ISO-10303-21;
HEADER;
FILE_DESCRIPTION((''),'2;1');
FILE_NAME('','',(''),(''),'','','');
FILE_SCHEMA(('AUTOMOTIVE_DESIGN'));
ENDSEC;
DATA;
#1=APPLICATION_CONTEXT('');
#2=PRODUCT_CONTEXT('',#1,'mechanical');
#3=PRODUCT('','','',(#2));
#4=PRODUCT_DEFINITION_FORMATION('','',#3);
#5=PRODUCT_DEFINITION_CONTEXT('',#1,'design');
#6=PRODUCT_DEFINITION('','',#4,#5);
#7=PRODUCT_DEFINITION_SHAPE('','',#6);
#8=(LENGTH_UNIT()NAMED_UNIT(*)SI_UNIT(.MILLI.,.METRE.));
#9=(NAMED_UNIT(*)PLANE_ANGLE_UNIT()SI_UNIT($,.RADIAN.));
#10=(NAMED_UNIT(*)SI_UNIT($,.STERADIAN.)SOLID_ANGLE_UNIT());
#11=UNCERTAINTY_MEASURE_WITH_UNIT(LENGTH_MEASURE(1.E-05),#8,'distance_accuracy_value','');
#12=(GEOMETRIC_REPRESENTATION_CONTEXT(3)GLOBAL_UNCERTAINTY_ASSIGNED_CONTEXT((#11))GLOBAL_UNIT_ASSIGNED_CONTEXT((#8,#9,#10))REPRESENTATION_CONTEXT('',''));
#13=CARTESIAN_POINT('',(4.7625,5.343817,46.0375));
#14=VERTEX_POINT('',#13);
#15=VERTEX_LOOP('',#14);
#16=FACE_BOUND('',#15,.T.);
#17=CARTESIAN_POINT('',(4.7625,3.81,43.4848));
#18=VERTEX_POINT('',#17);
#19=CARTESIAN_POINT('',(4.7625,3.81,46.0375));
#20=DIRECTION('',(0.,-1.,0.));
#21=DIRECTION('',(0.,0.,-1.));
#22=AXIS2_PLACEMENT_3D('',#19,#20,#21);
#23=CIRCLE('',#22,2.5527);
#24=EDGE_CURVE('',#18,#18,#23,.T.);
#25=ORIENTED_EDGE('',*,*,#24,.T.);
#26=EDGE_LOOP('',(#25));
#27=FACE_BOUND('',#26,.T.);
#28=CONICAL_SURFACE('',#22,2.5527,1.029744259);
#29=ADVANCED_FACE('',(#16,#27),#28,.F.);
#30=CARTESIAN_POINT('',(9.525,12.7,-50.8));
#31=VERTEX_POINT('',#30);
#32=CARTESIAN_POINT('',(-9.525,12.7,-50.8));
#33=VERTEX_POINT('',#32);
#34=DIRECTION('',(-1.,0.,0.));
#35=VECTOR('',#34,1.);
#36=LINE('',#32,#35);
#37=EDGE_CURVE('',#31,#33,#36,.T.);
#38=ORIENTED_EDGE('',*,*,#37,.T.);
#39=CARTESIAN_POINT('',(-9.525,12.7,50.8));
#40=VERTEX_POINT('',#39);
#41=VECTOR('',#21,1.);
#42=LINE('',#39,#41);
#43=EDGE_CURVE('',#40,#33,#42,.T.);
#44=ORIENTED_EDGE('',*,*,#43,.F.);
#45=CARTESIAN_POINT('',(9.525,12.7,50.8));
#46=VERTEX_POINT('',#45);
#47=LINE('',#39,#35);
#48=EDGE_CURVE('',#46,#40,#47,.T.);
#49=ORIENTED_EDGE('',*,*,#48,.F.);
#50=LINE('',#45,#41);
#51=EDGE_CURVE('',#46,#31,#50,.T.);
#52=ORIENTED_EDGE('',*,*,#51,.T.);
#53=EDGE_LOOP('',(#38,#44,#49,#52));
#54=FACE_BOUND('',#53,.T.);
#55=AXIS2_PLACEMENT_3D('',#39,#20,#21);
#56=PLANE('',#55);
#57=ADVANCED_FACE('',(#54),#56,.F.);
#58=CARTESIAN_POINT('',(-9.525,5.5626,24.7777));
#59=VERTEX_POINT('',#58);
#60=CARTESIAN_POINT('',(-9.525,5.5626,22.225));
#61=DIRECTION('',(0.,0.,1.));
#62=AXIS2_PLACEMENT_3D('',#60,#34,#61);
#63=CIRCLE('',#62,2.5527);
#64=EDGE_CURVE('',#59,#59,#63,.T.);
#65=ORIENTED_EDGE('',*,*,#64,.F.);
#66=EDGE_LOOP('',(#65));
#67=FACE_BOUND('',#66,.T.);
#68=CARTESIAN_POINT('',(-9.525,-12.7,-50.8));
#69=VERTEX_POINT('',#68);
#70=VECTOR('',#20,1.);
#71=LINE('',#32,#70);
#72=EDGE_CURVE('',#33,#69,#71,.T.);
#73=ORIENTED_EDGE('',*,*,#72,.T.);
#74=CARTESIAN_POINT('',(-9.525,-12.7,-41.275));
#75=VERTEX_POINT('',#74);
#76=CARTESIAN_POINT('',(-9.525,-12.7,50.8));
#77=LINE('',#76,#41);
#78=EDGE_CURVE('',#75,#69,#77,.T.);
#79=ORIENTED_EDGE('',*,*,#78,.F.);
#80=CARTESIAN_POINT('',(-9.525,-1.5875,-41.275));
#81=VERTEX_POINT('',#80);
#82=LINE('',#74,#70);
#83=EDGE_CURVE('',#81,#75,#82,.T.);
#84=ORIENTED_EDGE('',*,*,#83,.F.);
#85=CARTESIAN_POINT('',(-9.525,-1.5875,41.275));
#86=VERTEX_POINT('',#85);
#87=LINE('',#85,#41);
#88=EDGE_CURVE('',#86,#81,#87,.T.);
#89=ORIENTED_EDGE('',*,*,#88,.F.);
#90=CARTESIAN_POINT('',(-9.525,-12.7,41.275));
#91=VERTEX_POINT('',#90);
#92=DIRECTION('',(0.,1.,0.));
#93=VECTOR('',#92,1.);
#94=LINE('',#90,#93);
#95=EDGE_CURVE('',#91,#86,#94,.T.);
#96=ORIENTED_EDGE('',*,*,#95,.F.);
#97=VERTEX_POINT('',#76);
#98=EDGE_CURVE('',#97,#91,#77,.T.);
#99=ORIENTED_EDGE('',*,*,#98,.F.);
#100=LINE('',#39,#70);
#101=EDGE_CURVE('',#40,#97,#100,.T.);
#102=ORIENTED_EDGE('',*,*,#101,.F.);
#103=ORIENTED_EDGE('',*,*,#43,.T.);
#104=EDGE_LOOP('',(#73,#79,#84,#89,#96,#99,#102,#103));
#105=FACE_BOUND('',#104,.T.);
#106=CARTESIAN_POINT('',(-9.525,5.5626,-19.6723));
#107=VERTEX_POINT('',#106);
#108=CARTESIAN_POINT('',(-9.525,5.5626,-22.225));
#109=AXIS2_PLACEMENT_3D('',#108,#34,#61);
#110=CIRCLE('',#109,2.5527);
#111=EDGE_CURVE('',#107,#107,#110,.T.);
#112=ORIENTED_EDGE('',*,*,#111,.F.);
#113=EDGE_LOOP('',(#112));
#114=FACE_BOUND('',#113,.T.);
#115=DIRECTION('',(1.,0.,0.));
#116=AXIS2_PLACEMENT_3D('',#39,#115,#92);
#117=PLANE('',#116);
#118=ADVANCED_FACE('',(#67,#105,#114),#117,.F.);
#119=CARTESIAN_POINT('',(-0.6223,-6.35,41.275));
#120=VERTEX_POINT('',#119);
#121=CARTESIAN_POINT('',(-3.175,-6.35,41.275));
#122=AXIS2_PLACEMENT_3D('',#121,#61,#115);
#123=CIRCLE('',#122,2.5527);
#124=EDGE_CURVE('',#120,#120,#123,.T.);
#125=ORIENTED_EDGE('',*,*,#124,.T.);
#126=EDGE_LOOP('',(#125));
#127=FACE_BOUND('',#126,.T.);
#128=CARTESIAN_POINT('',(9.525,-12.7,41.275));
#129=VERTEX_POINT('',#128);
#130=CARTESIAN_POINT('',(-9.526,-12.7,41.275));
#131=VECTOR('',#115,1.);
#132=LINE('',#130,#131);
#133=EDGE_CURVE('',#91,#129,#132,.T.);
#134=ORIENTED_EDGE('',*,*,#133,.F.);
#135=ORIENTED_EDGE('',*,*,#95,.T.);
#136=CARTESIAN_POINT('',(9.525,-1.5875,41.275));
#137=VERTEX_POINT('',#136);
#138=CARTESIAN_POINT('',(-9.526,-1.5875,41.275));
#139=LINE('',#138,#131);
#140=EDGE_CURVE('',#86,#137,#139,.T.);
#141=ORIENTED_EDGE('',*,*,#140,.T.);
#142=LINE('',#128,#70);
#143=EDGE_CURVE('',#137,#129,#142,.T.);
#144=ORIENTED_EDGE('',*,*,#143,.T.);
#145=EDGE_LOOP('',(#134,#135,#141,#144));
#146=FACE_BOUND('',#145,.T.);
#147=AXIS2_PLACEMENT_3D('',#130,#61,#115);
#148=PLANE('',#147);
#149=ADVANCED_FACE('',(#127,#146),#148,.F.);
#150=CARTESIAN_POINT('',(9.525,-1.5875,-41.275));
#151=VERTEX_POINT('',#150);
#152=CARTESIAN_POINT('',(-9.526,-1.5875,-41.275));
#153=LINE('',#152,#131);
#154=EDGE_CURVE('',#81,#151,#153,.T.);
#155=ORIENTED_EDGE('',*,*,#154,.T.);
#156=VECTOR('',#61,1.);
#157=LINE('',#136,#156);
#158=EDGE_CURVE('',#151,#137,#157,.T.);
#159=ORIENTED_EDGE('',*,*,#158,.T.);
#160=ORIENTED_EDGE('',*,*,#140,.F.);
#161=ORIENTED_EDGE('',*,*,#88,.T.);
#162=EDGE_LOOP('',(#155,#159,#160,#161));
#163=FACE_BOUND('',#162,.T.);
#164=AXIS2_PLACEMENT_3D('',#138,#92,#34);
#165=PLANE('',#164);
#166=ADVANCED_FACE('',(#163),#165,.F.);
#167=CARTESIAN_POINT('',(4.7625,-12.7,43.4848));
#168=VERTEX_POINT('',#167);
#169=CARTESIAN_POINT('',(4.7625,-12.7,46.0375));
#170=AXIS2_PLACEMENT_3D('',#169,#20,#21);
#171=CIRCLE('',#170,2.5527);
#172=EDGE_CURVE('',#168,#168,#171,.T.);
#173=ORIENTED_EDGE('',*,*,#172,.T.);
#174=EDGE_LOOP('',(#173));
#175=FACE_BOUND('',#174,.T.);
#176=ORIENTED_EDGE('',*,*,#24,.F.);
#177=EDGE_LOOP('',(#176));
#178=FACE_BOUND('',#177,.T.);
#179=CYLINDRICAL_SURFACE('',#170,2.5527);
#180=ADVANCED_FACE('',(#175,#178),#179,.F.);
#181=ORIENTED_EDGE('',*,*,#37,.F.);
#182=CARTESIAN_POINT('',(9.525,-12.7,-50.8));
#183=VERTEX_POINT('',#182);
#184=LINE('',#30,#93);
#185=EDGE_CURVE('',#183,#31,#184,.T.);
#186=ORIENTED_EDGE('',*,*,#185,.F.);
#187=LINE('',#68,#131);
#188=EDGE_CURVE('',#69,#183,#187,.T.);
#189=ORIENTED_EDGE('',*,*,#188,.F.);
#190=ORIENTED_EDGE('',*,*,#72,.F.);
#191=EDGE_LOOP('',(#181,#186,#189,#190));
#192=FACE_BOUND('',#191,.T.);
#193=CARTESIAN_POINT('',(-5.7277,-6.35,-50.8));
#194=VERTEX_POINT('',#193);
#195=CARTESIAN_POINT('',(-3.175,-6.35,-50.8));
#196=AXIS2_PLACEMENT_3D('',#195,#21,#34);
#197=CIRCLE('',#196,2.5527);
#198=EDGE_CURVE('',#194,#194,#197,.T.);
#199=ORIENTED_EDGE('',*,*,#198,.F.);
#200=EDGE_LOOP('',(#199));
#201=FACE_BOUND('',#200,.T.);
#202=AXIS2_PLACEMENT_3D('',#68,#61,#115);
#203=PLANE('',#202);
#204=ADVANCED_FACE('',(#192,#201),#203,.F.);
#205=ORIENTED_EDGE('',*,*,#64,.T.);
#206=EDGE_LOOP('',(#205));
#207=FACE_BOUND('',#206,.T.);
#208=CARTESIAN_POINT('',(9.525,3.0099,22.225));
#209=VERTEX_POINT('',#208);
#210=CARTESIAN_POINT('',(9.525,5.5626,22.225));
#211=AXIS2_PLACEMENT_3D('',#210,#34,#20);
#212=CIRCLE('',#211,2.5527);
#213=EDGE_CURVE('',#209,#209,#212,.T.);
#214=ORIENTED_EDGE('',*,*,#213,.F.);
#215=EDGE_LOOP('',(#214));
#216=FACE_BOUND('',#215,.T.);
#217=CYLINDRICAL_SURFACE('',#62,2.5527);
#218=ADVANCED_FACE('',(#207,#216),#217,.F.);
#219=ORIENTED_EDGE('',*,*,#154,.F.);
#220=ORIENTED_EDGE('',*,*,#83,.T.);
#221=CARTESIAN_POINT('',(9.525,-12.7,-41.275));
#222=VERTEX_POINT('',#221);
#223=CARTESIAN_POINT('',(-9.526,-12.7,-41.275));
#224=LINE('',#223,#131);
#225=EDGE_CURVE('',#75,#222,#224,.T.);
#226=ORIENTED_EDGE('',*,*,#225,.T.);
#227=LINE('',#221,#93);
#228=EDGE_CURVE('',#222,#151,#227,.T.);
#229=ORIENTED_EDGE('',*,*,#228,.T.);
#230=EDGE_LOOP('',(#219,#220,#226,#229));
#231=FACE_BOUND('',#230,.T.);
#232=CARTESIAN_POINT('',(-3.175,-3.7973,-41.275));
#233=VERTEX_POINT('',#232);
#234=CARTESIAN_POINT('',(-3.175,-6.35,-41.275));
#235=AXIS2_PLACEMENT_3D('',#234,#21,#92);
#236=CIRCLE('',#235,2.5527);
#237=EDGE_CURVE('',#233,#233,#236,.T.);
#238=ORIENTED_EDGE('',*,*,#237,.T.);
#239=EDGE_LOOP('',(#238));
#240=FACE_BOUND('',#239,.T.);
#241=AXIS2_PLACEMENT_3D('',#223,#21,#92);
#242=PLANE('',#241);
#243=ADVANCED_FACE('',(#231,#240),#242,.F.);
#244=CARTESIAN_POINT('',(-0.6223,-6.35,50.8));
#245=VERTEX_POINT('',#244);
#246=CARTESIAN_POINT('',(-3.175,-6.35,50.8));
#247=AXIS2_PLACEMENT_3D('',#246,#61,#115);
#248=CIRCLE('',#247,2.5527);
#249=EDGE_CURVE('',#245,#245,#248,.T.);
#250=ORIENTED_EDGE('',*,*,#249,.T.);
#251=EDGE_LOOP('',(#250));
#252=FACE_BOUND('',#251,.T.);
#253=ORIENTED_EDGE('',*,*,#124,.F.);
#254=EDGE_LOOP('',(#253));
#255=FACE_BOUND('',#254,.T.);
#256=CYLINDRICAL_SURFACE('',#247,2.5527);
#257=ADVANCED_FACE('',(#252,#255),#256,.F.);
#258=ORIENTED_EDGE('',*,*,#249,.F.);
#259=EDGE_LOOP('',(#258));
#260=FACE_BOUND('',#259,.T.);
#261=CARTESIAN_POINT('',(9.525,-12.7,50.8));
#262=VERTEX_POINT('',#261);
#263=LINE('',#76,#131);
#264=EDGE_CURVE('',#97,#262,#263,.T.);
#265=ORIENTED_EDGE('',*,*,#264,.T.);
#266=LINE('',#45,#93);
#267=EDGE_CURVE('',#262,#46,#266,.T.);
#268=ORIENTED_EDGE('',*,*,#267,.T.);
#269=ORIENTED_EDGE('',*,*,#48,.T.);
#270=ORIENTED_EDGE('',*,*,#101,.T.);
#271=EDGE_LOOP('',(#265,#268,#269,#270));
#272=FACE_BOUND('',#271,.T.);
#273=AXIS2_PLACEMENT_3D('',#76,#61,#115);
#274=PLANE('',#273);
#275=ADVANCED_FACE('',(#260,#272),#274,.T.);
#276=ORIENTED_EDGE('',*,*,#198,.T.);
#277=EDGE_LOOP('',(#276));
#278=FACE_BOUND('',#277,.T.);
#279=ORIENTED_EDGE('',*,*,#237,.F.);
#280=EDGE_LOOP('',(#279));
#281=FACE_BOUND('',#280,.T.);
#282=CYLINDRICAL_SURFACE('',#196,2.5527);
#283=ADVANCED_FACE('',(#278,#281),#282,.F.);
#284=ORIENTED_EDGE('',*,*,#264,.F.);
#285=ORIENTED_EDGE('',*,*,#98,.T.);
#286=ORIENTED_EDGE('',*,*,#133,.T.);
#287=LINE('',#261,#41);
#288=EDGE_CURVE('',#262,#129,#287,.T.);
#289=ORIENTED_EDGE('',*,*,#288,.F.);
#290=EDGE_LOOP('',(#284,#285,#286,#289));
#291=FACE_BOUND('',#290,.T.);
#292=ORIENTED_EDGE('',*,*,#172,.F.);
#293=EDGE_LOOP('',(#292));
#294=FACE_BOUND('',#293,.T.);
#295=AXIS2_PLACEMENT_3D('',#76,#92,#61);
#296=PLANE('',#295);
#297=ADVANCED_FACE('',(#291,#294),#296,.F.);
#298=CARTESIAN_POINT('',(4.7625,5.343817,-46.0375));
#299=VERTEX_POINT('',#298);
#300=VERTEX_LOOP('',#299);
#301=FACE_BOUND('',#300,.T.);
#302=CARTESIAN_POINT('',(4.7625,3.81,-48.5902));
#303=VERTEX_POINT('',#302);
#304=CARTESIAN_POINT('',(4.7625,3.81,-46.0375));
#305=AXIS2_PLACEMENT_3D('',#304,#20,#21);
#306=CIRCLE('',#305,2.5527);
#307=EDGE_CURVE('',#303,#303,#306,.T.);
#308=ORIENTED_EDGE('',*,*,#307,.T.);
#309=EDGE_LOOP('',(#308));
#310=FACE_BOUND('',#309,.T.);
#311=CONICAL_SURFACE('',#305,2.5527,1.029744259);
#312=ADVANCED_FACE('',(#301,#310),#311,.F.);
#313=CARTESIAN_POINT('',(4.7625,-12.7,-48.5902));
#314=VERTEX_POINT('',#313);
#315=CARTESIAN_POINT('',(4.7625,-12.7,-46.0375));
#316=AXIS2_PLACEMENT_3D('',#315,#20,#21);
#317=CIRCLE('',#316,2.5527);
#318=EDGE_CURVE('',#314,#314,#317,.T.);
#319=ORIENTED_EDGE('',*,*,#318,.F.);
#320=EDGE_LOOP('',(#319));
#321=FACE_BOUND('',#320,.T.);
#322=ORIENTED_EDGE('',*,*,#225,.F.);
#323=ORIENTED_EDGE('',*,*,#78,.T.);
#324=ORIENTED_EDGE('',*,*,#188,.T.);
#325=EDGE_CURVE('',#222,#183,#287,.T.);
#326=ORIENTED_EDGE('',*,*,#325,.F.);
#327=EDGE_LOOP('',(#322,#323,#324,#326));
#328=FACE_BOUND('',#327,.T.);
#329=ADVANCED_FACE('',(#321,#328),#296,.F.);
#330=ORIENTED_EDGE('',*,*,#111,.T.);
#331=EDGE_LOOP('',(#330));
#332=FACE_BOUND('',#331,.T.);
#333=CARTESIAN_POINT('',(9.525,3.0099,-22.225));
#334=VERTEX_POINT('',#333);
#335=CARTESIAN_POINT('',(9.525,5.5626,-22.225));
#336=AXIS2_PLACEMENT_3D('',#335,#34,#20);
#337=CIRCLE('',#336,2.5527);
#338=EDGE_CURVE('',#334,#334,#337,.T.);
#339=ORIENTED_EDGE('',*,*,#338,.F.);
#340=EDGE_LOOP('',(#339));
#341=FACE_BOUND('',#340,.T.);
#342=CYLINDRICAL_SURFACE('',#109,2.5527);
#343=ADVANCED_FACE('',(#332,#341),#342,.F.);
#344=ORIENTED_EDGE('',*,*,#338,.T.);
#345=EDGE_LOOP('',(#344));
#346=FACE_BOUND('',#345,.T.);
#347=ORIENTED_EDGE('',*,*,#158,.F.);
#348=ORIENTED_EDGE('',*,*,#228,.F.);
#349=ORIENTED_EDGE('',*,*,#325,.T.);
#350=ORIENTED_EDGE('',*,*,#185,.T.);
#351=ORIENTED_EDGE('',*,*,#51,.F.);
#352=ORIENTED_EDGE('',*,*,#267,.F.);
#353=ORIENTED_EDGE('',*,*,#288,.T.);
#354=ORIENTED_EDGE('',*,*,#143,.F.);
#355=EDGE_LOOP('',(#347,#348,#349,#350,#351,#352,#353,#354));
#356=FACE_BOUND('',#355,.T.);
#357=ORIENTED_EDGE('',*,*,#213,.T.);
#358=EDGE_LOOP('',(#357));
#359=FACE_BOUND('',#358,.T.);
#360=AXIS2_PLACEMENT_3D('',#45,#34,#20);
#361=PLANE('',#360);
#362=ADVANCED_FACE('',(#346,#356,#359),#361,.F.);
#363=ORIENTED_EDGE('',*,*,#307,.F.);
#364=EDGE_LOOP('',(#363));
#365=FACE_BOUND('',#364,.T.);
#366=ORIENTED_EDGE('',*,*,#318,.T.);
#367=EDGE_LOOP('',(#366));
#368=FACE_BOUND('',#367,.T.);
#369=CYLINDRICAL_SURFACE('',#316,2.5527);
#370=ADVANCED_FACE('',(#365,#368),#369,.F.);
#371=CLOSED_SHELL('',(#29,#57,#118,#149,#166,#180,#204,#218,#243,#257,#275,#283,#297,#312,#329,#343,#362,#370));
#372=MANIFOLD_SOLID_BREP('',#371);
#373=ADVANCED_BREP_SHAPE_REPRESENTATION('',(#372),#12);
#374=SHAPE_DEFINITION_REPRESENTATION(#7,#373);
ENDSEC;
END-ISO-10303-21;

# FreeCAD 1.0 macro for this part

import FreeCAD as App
import Part
import Sketcher
from FreeCAD import Vector
Q = App.Units.Quantity


def add_polygon(sketch, points):
    """Adds a closed chain of lines whose ends are joined by coincident constraints."""
    first, n = sketch.GeometryCount, len(points)
    for a, b in zip(points, points[1:] + points[:1]):
        sketch.addGeometry(Part.LineSegment(App.Vector(*a, 0), App.Vector(*b, 0)), False)
    for i in range(n):
        sketch.addConstraint(Sketcher.Constraint("Coincident", first + i, 2, first + (i + 1) % n, 1))

doc = App.newDocument("Part")
body = doc.addObject("PartDesign::Body", "Body")

sketch1 = body.newObject("Sketcher::SketchObject", "Sketch")
sketch1.AttachmentSupport = (doc.getObject("XY_Plane"), [""])
sketch1.MapMode = "FlatFace"
add_polygon(sketch1, [(-9.525, 12.7), (-9.525, -12.7), (9.525, -12.7), (9.525, 12.7)])
sketch1.addConstraint(Sketcher.Constraint("Vertical", 0))
sketch1.addConstraint(Sketcher.Constraint("Horizontal", 1))
sketch1.addConstraint(Sketcher.Constraint("Vertical", 2))
sketch1.addConstraint(Sketcher.Constraint("Horizontal", 3))
sketch1.addConstraint(Sketcher.Constraint("Symmetric", 0, 2, 2, 2, -1, 1))
sketch1.addConstraint(Sketcher.Constraint("DistanceY", 0, 2, 0, 1, Q("1 in")))
sketch1.addConstraint(Sketcher.Constraint("DistanceX", 1, 1, 1, 2, Q("0.75 in")))
pad1 = body.newObject("PartDesign::Pad", "Pad")
pad1.Profile = sketch1
pad1.Length = Q("4 in")
pad1.Midplane = True

sketch2 = body.newObject("Sketcher::SketchObject", "Sketch001")
sketch2.AttachmentSupport = (doc.getObject("YZ_Plane"), [""])
sketch2.MapMode = "FlatFace"
sketch2.AttachmentOffset = App.Placement(Vector(0, 0, 0.375 * 25.4), App.Rotation())
add_polygon(sketch2, [(-1.5875, 41.275), (-12.7, 41.275), (-12.7, -41.275), (-1.5875, -41.275)])
sketch2.addConstraint(Sketcher.Constraint("Horizontal", 0))
sketch2.addConstraint(Sketcher.Constraint("Vertical", 1))
sketch2.addConstraint(Sketcher.Constraint("Horizontal", 2))
sketch2.addConstraint(Sketcher.Constraint("Vertical", 3))
sketch2.addConstraint(Sketcher.Constraint("DistanceY", 1, 2, 1, 1, Q("3.25 in")))
sketch2.addConstraint(Sketcher.Constraint("DistanceX", 0, 2, -1, 1, Q("0.5 in")))
sketch2.addConstraint(Sketcher.Constraint("DistanceX", 0, 2, 0, 1, Q("0.4375 in")))
sketch2.addConstraint(Sketcher.Constraint("DistanceY", -1, 1, 0, 2, Q("1.625 in")))
pocket1 = body.newObject("PartDesign::Pocket", "Pocket")
pocket1.Profile = sketch2
pocket1.Type = "UpToFirst"

sketch3 = body.newObject("Sketcher::SketchObject", "Sketch002")
sketch3.AttachmentSupport = (doc.getObject("XY_Plane"), [""])
sketch3.MapMode = "FlatFace"
sketch3.AttachmentOffset = App.Placement(Vector(0, 0, -2 * 25.4), App.Rotation())
sketch3.addGeometry(Part.Circle(Vector(-3.175, -6.35, 0), Vector(0, 0, 1), 2.5527), False)
sketch3.addConstraint(Sketcher.Constraint("Diameter", 0, Q("0.201 in")))
sketch3.addConstraint(Sketcher.Constraint("DistanceY", 0, 3, -1, 1, Q("0.25 in")))
sketch3.addConstraint(Sketcher.Constraint("DistanceX", 0, 3, -1, 1, Q("0.125 in")))
doc.recompute()
hole = body.newObject("PartDesign::Hole", "Hole")
hole.Profile = sketch3
hole.ThreadType = "None"
hole.Diameter = Q("0.201 in")
hole.DepthType = "Dimension"
hole.Depth = Q("0.375 in")
hole.DrillPoint = "Flat"
hole.Reversed = True

sketch4 = body.newObject("Sketcher::SketchObject", "Sketch003")
sketch4.AttachmentSupport = (doc.getObject("XY_Plane"), [""])
sketch4.MapMode = "FlatFace"
sketch4.AttachmentOffset = App.Placement(Vector(0, 0, 2 * 25.4), App.Rotation())
sketch4.addGeometry(Part.Circle(Vector(-3.175, -6.35, 0), Vector(0, 0, 1), 2.5527), False)
sketch4.addConstraint(Sketcher.Constraint("Diameter", 0, Q("0.201 in")))
sketch4.addConstraint(Sketcher.Constraint("DistanceY", 0, 3, -1, 1, Q("0.25 in")))
sketch4.addConstraint(Sketcher.Constraint("DistanceX", 0, 3, -1, 1, Q("0.125 in")))
doc.recompute()
hole2 = body.newObject("PartDesign::Hole", "Hole001")
hole2.Profile = sketch4
hole2.ThreadType = "None"
hole2.Diameter = Q("0.201 in")
hole2.DepthType = "Dimension"
hole2.Depth = Q("0.375 in")
hole2.DrillPoint = "Flat"

sketch5 = body.newObject("Sketcher::SketchObject", "Sketch004")
sketch5.AttachmentSupport = (doc.getObject("XZ_Plane"), [""])
sketch5.MapMode = "FlatFace"
sketch5.AttachmentOffset = App.Placement(Vector(0, 0, 0.5 * 25.4), App.Rotation())
sketch5.addGeometry(Part.Circle(Vector(4.7625, 46.0375, 0), Vector(0, 0, 1), 2.5527), False)
sketch5.addGeometry(Part.Circle(Vector(4.7625, -46.0375, 0), Vector(0, 0, 1), 2.5527), False)
sketch5.addConstraint(Sketcher.Constraint("Equal", 0, 1))
sketch5.addConstraint(Sketcher.Constraint("Symmetric", 0, 3, 1, 3, -1))
sketch5.addConstraint(Sketcher.Constraint("Diameter", 0, Q("0.201 in")))
sketch5.addConstraint(Sketcher.Constraint("DistanceX", -1, 1, 0, 3, Q("0.1875 in")))
sketch5.addConstraint(Sketcher.Constraint("DistanceY", -1, 1, 0, 3, Q("1.8125 in")))
doc.recompute()
hole3 = body.newObject("PartDesign::Hole", "Hole002")
hole3.Profile = sketch5
hole3.ThreadType = "None"
hole3.Diameter = Q("0.201 in")
hole3.DepthType = "Dimension"
hole3.Depth = Q("0.65 in")
hole3.DrillPoint = "Angled"
hole3.DrillPointAngle = 118

sketch6 = body.newObject("Sketcher::SketchObject", "Sketch005")
sketch6.AttachmentSupport = (doc.getObject("YZ_Plane"), [""])
sketch6.MapMode = "FlatFace"
sketch6.AttachmentOffset = App.Placement(Vector(0, 0, -0.375 * 25.4), App.Rotation())
sketch6.addGeometry(Part.Circle(Vector(5.5626, -22.225, 0), Vector(0, 0, 1), 2.5527), False)
sketch6.addGeometry(Part.Circle(Vector(5.5626, 22.225, 0), Vector(0, 0, 1), 2.5527), False)
sketch6.addConstraint(Sketcher.Constraint("Equal", 0, 1))
sketch6.addConstraint(Sketcher.Constraint("Symmetric", 0, 3, 1, 3, -1))
sketch6.addConstraint(Sketcher.Constraint("Diameter", 0, Q("0.201 in")))
sketch6.addConstraint(Sketcher.Constraint("DistanceY", 0, 3, 1, 3, Q("1.75 in")))
sketch6.addConstraint(Sketcher.Constraint("DistanceX", -1, 1, 0, 3, Q("0.219 in")))
doc.recompute()
hole4 = body.newObject("PartDesign::Hole", "Hole003")
hole4.Profile = sketch6
hole4.ThreadType = "None"
hole4.Diameter = Q("0.201 in")
hole4.DepthType = "Dimension"
hole4.Depth = Q("0.75 in")
hole4.DrillPoint = "Flat"
hole4.Reversed = True

doc.recompute()
